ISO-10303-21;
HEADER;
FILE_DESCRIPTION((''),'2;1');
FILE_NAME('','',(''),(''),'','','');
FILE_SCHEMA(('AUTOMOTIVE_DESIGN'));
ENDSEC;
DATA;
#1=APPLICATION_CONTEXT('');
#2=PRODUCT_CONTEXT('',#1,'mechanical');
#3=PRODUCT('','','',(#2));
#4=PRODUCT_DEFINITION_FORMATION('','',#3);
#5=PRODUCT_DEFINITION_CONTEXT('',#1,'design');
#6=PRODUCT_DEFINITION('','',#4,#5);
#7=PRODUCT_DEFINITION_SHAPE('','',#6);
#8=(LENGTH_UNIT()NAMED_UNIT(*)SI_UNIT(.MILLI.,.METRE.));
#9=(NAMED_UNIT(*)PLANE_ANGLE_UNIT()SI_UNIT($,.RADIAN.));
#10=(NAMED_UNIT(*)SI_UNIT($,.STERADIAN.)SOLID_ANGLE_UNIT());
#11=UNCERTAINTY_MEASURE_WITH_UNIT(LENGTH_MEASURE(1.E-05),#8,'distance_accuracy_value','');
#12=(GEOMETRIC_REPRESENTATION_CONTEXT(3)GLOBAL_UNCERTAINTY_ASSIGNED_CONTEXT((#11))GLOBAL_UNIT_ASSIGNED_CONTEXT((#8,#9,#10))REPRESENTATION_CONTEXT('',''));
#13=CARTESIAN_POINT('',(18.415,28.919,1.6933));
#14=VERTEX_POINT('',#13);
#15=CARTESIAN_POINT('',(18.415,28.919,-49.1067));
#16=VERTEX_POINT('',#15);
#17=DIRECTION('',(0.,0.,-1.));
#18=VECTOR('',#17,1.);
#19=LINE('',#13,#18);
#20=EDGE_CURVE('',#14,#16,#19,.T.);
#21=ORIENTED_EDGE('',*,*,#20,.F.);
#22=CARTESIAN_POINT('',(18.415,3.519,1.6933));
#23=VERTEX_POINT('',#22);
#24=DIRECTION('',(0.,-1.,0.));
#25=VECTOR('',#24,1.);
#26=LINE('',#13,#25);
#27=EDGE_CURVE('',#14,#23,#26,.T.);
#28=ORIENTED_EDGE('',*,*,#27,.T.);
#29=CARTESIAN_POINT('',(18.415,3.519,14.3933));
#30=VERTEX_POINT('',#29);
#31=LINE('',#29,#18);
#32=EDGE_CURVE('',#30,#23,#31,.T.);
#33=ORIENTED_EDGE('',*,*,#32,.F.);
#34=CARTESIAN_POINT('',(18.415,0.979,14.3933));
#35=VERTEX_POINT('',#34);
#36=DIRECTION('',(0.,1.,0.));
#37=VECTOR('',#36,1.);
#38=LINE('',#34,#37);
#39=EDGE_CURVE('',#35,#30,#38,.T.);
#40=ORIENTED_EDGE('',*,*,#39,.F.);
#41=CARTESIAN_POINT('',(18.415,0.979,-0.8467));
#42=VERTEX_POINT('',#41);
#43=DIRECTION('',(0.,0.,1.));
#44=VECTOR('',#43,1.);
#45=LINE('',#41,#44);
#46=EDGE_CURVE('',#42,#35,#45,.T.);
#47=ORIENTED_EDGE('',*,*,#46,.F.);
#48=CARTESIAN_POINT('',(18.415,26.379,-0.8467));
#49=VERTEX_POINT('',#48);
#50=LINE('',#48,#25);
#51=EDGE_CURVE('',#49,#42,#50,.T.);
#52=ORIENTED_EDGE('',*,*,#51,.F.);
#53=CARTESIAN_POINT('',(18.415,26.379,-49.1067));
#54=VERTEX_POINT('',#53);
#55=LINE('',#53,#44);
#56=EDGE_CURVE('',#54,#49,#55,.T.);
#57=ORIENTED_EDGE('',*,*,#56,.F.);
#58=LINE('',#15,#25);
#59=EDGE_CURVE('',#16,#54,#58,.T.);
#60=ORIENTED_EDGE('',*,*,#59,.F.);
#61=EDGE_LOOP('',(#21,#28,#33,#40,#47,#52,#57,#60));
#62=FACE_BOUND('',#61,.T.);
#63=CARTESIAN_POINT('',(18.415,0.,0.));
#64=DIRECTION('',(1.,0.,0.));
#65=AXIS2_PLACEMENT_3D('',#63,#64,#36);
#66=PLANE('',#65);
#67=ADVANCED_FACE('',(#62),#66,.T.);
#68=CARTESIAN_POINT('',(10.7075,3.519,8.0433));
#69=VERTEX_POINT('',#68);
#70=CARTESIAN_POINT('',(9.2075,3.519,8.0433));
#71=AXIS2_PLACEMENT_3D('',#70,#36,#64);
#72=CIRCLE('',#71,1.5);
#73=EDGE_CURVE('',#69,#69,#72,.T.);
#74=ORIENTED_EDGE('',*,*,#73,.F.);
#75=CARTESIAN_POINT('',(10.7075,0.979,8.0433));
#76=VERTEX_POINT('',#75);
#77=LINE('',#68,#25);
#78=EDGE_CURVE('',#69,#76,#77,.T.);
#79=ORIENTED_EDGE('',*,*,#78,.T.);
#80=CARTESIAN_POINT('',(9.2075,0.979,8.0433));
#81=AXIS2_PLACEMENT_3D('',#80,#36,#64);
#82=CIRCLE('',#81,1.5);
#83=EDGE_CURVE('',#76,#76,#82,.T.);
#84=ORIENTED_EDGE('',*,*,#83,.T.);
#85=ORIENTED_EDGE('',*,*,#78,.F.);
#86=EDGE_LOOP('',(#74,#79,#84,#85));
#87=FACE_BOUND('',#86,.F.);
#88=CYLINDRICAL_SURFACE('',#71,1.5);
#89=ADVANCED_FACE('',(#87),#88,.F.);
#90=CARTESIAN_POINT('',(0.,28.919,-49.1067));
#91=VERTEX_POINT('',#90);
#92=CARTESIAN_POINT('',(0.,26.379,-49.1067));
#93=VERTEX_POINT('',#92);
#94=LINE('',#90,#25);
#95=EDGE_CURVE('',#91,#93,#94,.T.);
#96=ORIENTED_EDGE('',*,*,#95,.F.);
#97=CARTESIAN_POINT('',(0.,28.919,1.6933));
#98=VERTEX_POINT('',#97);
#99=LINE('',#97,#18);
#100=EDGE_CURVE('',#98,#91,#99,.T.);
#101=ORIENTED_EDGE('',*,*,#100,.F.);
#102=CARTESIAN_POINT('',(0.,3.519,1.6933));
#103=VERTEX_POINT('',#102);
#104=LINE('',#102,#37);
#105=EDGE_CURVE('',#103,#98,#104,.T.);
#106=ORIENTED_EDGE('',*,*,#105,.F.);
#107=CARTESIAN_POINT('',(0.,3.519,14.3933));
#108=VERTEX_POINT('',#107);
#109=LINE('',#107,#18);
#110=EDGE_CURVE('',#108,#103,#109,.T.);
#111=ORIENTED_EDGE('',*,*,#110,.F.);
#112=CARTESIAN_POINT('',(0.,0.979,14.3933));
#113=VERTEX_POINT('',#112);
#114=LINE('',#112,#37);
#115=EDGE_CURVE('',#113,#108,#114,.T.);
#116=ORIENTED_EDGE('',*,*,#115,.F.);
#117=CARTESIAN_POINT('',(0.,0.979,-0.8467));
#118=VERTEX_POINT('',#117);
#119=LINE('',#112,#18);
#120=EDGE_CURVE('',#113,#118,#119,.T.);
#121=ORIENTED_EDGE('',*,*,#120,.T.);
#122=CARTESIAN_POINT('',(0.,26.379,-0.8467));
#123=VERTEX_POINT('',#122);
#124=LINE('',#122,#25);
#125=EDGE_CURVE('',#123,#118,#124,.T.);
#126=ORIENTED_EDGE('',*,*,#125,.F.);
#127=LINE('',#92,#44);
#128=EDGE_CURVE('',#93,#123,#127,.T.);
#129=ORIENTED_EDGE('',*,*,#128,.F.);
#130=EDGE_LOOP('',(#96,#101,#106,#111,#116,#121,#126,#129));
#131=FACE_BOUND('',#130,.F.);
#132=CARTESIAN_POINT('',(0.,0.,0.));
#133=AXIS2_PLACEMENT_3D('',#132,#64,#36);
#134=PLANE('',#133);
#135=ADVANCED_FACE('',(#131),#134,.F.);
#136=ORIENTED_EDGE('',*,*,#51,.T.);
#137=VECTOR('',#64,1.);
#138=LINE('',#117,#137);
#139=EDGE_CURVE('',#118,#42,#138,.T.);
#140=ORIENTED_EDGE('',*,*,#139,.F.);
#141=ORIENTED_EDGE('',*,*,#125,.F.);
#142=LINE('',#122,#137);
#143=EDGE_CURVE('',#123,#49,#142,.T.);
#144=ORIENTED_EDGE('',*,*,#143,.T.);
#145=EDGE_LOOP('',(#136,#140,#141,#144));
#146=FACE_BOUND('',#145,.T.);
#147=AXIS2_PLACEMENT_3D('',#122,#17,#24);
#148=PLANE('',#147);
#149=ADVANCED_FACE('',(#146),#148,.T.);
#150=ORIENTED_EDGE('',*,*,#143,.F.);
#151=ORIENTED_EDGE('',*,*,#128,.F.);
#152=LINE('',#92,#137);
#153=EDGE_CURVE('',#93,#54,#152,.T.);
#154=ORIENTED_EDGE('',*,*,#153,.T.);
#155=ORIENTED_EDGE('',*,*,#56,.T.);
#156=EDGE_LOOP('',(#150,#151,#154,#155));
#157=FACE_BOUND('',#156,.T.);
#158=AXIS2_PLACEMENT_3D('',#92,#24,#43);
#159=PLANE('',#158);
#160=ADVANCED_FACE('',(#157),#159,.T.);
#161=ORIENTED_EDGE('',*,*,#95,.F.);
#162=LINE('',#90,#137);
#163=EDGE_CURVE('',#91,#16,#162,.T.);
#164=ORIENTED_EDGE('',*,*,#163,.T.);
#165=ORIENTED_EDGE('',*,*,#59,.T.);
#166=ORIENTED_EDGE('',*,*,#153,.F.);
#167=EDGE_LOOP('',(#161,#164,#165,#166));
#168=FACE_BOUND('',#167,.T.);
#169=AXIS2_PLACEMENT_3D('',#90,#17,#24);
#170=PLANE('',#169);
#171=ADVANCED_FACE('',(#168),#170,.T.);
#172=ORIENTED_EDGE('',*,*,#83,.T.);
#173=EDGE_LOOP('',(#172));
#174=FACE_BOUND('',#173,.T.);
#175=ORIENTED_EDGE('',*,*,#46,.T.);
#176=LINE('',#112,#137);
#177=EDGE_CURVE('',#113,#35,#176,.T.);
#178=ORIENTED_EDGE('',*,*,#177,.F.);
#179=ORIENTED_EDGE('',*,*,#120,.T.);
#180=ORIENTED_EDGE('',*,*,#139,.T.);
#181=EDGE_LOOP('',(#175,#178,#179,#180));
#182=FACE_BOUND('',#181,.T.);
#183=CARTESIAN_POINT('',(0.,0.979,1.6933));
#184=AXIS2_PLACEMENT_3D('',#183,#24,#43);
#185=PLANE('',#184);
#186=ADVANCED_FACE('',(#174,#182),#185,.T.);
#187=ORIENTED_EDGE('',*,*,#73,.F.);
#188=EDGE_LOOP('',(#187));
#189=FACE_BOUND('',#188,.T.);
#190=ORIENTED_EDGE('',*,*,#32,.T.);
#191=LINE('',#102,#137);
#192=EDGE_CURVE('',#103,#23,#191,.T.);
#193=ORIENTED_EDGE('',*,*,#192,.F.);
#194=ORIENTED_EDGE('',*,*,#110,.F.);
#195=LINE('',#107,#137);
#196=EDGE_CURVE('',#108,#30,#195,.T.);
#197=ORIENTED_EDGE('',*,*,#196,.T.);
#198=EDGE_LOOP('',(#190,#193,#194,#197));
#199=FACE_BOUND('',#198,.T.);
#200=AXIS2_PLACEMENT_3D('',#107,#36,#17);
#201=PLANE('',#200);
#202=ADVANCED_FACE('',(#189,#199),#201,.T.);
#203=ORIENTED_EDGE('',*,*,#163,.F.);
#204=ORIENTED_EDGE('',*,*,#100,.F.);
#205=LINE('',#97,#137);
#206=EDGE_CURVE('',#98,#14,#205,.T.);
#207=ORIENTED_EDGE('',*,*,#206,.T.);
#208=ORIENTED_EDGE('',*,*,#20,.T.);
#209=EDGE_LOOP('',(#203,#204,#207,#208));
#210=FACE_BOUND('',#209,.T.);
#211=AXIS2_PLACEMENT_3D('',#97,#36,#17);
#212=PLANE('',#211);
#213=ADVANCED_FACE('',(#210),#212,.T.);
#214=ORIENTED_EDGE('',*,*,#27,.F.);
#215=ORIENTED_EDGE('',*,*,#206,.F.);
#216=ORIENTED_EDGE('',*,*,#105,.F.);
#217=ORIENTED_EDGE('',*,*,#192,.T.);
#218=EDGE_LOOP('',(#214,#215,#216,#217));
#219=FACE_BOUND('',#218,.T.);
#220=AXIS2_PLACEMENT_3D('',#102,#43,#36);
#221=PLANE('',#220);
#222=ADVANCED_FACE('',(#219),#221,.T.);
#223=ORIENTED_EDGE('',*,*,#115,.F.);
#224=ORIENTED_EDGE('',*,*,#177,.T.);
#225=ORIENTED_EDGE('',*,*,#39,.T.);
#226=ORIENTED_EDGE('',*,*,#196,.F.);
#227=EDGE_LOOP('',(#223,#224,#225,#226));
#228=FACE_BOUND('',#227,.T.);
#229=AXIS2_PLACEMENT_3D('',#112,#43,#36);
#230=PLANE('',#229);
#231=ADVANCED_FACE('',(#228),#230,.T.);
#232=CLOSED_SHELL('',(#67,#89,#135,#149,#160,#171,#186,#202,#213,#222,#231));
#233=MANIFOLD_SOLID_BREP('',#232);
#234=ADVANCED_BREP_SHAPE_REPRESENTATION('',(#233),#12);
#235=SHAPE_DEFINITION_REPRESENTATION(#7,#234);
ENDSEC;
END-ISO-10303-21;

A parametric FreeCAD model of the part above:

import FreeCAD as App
import Part
import Sketcher
from FreeCAD import Vector
Q = App.Units.Quantity

doc = App.newDocument("Part")
body = doc.addObject("PartDesign::Body", "Body")

# Sketch on YZ plane
sketch1 = doc.addObject("Sketcher::SketchObject", "Sketch")
body.addObject(sketch1)
sketch1.AttachmentSupport = (doc.YZ_Plane, [""])
sketch1.MapMode = "FlatFace"
sketch1.addGeometry([
    Part.LineSegment(Vector(0.979, 14.3933, 0), Vector(0.979, -0.8467, 0)),  # 0
    Part.LineSegment(Vector(0.979, -0.8467, 0), Vector(26.379, -0.8467, 0)),  # 1
    Part.LineSegment(Vector(26.379, -0.8467, 0), Vector(26.379, -49.1067, 0)),  # 2
    Part.LineSegment(Vector(26.379, -49.1067, 0), Vector(28.919, -49.1067, 0)),  # 3
    Part.LineSegment(Vector(28.919, -49.1067, 0), Vector(28.919, 1.6933, 0)),  # 4
    Part.LineSegment(Vector(28.919, 1.6933, 0), Vector(3.519, 1.6933, 0)),  # 5
    Part.LineSegment(Vector(3.519, 1.6933, 0), Vector(3.519, 14.3933, 0)),  # 6
    Part.LineSegment(Vector(3.519, 14.3933, 0), Vector(0.979, 14.3933, 0)),  # 7
], False)
sketch1.addConstraint([
    Sketcher.Constraint("Coincident", 0, 2, 1, 1),
    Sketcher.Constraint("Coincident", 1, 2, 2, 1),
    Sketcher.Constraint("Coincident", 2, 2, 3, 1),
    Sketcher.Constraint("Coincident", 3, 2, 4, 1),
    Sketcher.Constraint("Coincident", 4, 2, 5, 1),
    Sketcher.Constraint("Coincident", 5, 2, 6, 1),
    Sketcher.Constraint("Coincident", 6, 2, 7, 1),
    Sketcher.Constraint("Coincident", 7, 2, 0, 1),
    Sketcher.Constraint("Vertical", 0),
    Sketcher.Constraint("Horizontal", 1),
    Sketcher.Constraint("Vertical", 2),
    Sketcher.Constraint("Horizontal", 3),
    Sketcher.Constraint("Vertical", 4),
    Sketcher.Constraint("Horizontal", 5),
    Sketcher.Constraint("Vertical", 6),
    Sketcher.Constraint("Horizontal", 7),
    Sketcher.Constraint("Equal", 1, 5),
    Sketcher.Constraint("DistanceX", 1, 1, 1, 2, Q("1 in")),
    Sketcher.Constraint("DistanceY", 4, 1, 4, 2, Q("2 in")),
    Sketcher.Constraint("DistanceX", 3, 1, 3, 2, Q("0.1 in")),
    Sketcher.Constraint("DistanceY", 6, 1, 6, 2, Q("0.5 in")),
    Sketcher.Constraint("DistanceY", 1, 2, 4, 2, Q("0.1 in")),
    Sketcher.Constraint("DistanceX", -1, 1, 0, 2, 0.979),
    Sketcher.Constraint("DistanceY", 0, 2, -1, 1, 0.8467),
])
pad1 = doc.addObject("PartDesign::Pad", "Pad")
body.addObject(pad1)
pad1.Profile = sketch1
pad1.Length = Q("0.725 in")

# Sketch on XZ plane
sketch2 = doc.addObject("Sketcher::SketchObject", "Sketch001")
body.addObject(sketch2)
sketch2.AttachmentSupport = (doc.XZ_Plane, [""])
sketch2.MapMode = "FlatFace"
sketch2.AttachmentOffset = App.Placement(Vector(0, 0, -3.519), App.Rotation())
sketch2.addGeometry(Part.Circle(Vector(9.2075, 8.0433, 0), Vector(0, 0, 1), 1.5), False)
sketch2.addConstraint([
    Sketcher.Constraint("Diameter", 0, Q("0.1181 in")),
    Sketcher.Constraint("DistanceX", -1, 1, 0, 3, Q("0.3625 in")),
    Sketcher.Constraint("DistanceY", -1, 1, 0, 3, 8.0433),
])
pocket1 = doc.addObject("PartDesign::Pocket", "Pocket")
body.addObject(pocket1)
pocket1.Profile = sketch2
pocket1.Length = Q("0.725 in")
pocket1.Reversed = True

doc.recompute()
